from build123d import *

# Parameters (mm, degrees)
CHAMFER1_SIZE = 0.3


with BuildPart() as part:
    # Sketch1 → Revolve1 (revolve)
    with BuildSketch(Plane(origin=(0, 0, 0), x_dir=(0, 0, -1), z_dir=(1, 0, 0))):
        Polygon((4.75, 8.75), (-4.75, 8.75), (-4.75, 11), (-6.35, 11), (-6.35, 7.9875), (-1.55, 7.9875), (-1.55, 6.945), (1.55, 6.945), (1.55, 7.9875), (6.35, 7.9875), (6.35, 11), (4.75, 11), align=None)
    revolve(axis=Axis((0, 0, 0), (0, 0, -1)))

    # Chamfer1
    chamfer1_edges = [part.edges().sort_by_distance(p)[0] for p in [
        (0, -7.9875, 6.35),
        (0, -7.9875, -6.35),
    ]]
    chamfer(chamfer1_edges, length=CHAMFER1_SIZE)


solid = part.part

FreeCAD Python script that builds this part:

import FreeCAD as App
import Part
import Sketcher

V = App.Vector


def edges_at(feature, points):
    """Names of the edges that pass closest to the given points."""
    edges = feature.Shape.Edges
    near = lambda p: min(range(len(edges)), key=lambda i: edges[i].distToShape(Part.Vertex(*p))[0])
    return sorted({f"Edge{near(p) + 1}" for p in points})

doc = App.newDocument("Part")
body = doc.addObject("PartDesign::Body", "Body")

sketch1 = body.newObject("Sketcher::SketchObject", "Sketch")
sketch1.AttachmentSupport = (doc.getObject("YZ_Plane"), [""])
sketch1.MapMode = "FlatFace"
sketch1.addGeometry([
    Part.LineSegment(V(8.75, -4.75, 0), V(8.75, 4.75, 0)),
    Part.LineSegment(V(8.75, 4.75, 0), V(11, 4.75, 0)),
    Part.LineSegment(V(11, 4.75, 0), V(11, 6.35, 0)),
    Part.LineSegment(V(11, 6.35, 0), V(7.9875, 6.35, 0)),
    Part.LineSegment(V(7.9875, 6.35, 0), V(7.9875, 1.55, 0)),
    Part.LineSegment(V(7.9875, 1.55, 0), V(6.945, 1.55, 0)),
    Part.LineSegment(V(6.945, 1.55, 0), V(6.945, -1.55, 0)),
    Part.LineSegment(V(6.945, -1.55, 0), V(7.9875, -1.55, 0)),
    Part.LineSegment(V(7.9875, -1.55, 0), V(7.9875, -6.35, 0)),
    Part.LineSegment(V(7.9875, -6.35, 0), V(11, -6.35, 0)),
    Part.LineSegment(V(11, -6.35, 0), V(11, -4.75, 0)),
    Part.LineSegment(V(11, -4.75, 0), V(8.75, -4.75, 0)),
], False)
sketch1.addConstraint([
    Sketcher.Constraint("Coincident", 0, 2, 1, 1),
    Sketcher.Constraint("Coincident", 1, 2, 2, 1),
    Sketcher.Constraint("Coincident", 2, 2, 3, 1),
    Sketcher.Constraint("Coincident", 3, 2, 4, 1),
    Sketcher.Constraint("Coincident", 4, 2, 5, 1),
    Sketcher.Constraint("Coincident", 5, 2, 6, 1),
    Sketcher.Constraint("Coincident", 6, 2, 7, 1),
    Sketcher.Constraint("Coincident", 7, 2, 8, 1),
    Sketcher.Constraint("Coincident", 8, 2, 9, 1),
    Sketcher.Constraint("Coincident", 9, 2, 10, 1),
    Sketcher.Constraint("Coincident", 10, 2, 11, 1),
    Sketcher.Constraint("Coincident", 11, 2, 0, 1),
    Sketcher.Constraint("Vertical", 0),
    Sketcher.Constraint("Horizontal", 1),
    Sketcher.Constraint("Vertical", 2),
    Sketcher.Constraint("Horizontal", 3),
    Sketcher.Constraint("Vertical", 4),
    Sketcher.Constraint("Horizontal", 5),
    Sketcher.Constraint("Vertical", 6),
    Sketcher.Constraint("Horizontal", 7),
    Sketcher.Constraint("Vertical", 8),
    Sketcher.Constraint("Horizontal", 9),
    Sketcher.Constraint("Vertical", 10),
    Sketcher.Constraint("Horizontal", 11),
    Sketcher.Constraint("Symmetric", 4, 2, 7, 2, -1),
    Sketcher.Constraint("Symmetric", 2, 2, 9, 2, -1),
    Sketcher.Constraint("Equal", 2, 10),
    Sketcher.Constraint("DistanceY", 0, 1, 0, 2, 9.5),
    Sketcher.Constraint("DistanceY", 2, 1, 2, 2, 1.6),
    Sketcher.Constraint("DistanceY", 4, 2, 4, 1, 4.8),
    Sketcher.Constraint("DistanceX", -1, 1, 1, 2, 11.0),
    Sketcher.Constraint("DistanceX", 1, 1, 1, 2, 2.25),
    Sketcher.Constraint("DistanceX", 3, 2, 3, 1, 3.0125),
    Sketcher.Constraint("DistanceX", 5, 2, 5, 1, 1.0425),
])
revolution = body.newObject("PartDesign::Revolution", "Revolution")
revolution.Profile = sketch1
revolution.ReferenceAxis = (sketch1, ["V_Axis"])
revolution.Angle = 360
doc.recompute()

chamfer = body.newObject("PartDesign::Chamfer", "Chamfer")
chamfer.Base = (revolution, edges_at(revolution, [(0, -7.987, 6.35), (0, -7.987, -6.35)]))
chamfer.Size = 0.3

doc.recompute()
